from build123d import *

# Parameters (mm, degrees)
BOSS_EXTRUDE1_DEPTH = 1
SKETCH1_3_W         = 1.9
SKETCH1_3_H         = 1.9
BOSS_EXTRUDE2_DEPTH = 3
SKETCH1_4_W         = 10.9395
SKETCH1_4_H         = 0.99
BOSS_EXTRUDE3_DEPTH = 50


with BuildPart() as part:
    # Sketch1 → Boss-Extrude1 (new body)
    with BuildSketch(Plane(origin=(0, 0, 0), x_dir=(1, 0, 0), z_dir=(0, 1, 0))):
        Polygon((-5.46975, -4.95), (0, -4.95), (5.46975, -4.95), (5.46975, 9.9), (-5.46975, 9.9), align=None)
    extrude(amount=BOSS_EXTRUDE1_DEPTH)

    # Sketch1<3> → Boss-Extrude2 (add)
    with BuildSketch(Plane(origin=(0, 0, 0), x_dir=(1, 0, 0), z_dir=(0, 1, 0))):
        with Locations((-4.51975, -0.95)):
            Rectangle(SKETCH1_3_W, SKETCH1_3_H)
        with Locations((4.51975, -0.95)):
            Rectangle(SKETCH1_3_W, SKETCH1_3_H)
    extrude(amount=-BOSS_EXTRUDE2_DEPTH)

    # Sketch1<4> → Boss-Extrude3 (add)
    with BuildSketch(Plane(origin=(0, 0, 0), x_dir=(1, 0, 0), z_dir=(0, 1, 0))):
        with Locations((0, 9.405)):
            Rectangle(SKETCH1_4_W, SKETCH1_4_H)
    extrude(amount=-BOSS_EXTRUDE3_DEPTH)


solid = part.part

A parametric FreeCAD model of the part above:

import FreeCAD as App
import Part
import Sketcher

doc = App.newDocument("Part")
params = doc.addObject("Spreadsheet::Sheet", "Params")
for row, (alias, value) in enumerate([
    ("sketch1_height", "14.85 mm"),
    ("pad1_length", "1 mm"),
    ("sketch2_width", "1.9 mm"),
    ("pad2_length", "3 mm"),
    ("sketch3_height", "0.99 mm"),
    ("pad3_length", "50 mm"),
], start=1):
    params.set(f"A{row}", alias)
    params.set(f"B{row}", "=" + value)
    params.setAlias(f"B{row}", alias)

body = doc.addObject("PartDesign::Body", "Body")

# Sketch on XZ plane
sketch1 = body.newObject("Sketcher::SketchObject", "Sketch")
sketch1.AttachmentSupport = (doc.getObject("XZ_Plane"), [""])
sketch1.MapMode = "FlatFace"
sketch1.addGeometry([
    Part.LineSegment(App.Vector(-5, 5, 0), App.Vector(5, 5, 0)),
    Part.LineSegment(App.Vector(5, 5, 0), App.Vector(5, -10, 0)),
    Part.LineSegment(App.Vector(5, -10, 0), App.Vector(-5, -10, 0)),
    Part.LineSegment(App.Vector(-5, -10, 0), App.Vector(-5, 5, 0)),
], False)
sketch1.addConstraint([
    Sketcher.Constraint("Coincident", 0, 2, 1, 1),
    Sketcher.Constraint("Coincident", 1, 2, 2, 1),
    Sketcher.Constraint("Coincident", 2, 2, 3, 1),
    Sketcher.Constraint("Coincident", 3, 2, 0, 1),
    Sketcher.Constraint("Horizontal", 0),
    Sketcher.Constraint("Vertical", 1),
    Sketcher.Constraint("Horizontal", 2),
    Sketcher.Constraint("Vertical", 3),
    Sketcher.Constraint("DistanceY", 1, 2, 1, 1, 14.85),
    Sketcher.Constraint("DistanceY", 1, 2, -1, 1, 9.9),
    Sketcher.Constraint("DistanceX", 0, 1, 0, 2, 10.9395),
    Sketcher.Constraint("DistanceX", -1, 1, 0, 2, 5.46975),
])
sketch1.setExpression("Constraints[8]", "Params.sketch1_height")
pad1 = body.newObject("PartDesign::Pad", "Pad")
pad1.Profile = sketch1
pad1.setExpression("Length", "Params.pad1_length")
pad1.Reversed = True

# Sketch on XZ plane
sketch2 = body.newObject("Sketcher::SketchObject", "Sketch001")
sketch2.AttachmentSupport = (doc.getObject("XZ_Plane"), [""])
sketch2.MapMode = "FlatFace"
sketch2.addGeometry([
    Part.LineSegment(App.Vector(-5.5, 0, 0), App.Vector(-5.5, 1.9, 0)),  # 0
    Part.LineSegment(App.Vector(-5.5, 1.9, 0), App.Vector(-3.6, 1.9, 0)),  # 1
    Part.LineSegment(App.Vector(-3.6, 1.9, 0), App.Vector(-3.6, 0, 0)),  # 2
    Part.LineSegment(App.Vector(-3.6, 0, 0), App.Vector(-5.5, 0, 0)),  # 3
    Part.LineSegment(App.Vector(3.6, 0, 0), App.Vector(3.6, 1.9, 0)),  # 4
    Part.LineSegment(App.Vector(3.6, 1.9, 0), App.Vector(5.5, 1.9, 0)),  # 5
    Part.LineSegment(App.Vector(5.5, 1.9, 0), App.Vector(5.5, 0, 0)),  # 6
    Part.LineSegment(App.Vector(5.5, 0, 0), App.Vector(3.6, 0, 0)),  # 7
], False)
sketch2.addConstraint([
    Sketcher.Constraint("Coincident", 0, 2, 1, 1),
    Sketcher.Constraint("Coincident", 1, 2, 2, 1),
    Sketcher.Constraint("Coincident", 2, 2, 3, 1),
    Sketcher.Constraint("Coincident", 3, 2, 0, 1),
    Sketcher.Constraint("Coincident", 4, 2, 5, 1),
    Sketcher.Constraint("Coincident", 5, 2, 6, 1),
    Sketcher.Constraint("Coincident", 6, 2, 7, 1),
    Sketcher.Constraint("Coincident", 7, 2, 4, 1),
    Sketcher.Constraint("Vertical", 0),
    Sketcher.Constraint("Horizontal", 1),
    Sketcher.Constraint("Vertical", 2),
    Sketcher.Constraint("Horizontal", 3),
    Sketcher.Constraint("Vertical", 4),
    Sketcher.Constraint("Horizontal", 5),
    Sketcher.Constraint("Vertical", 6),
    Sketcher.Constraint("Horizontal", 7),
    Sketcher.Constraint("Symmetric", 3, 2, 6, 2, -1, 1),
    Sketcher.Constraint("Symmetric", 1, 2, 4, 2, -2),
    Sketcher.Constraint("PointOnObject", 2, 2, -1),
    Sketcher.Constraint("Equal", 7, 0),
    Sketcher.Constraint("DistanceX", 1, 1, 1, 2, 1.9),
    Sketcher.Constraint("DistanceX", 1, 2, 4, 2, 7.1395),
])
sketch2.setExpression("Constraints[20]", "Params.sketch2_width")
pad2 = body.newObject("PartDesign::Pad", "Pad001")
pad2.Profile = sketch2
pad2.setExpression("Length", "Params.pad2_length")

# Sketch on XZ plane
sketch3 = body.newObject("Sketcher::SketchObject", "Sketch002")
sketch3.AttachmentSupport = (doc.getObject("XZ_Plane"), [""])
sketch3.MapMode = "FlatFace"
sketch3.addGeometry([
    Part.LineSegment(App.Vector(-5.5, -9.9, 0), App.Vector(-5.5, -8.9, 0)),
    Part.LineSegment(App.Vector(-5.5, -8.9, 0), App.Vector(5.5, -8.9, 0)),
    Part.LineSegment(App.Vector(5.5, -8.9, 0), App.Vector(5.5, -9.9, 0)),
    Part.LineSegment(App.Vector(5.5, -9.9, 0), App.Vector(-5.5, -9.9, 0)),
], False)
sketch3.addConstraint([
    Sketcher.Constraint("Coincident", 0, 2, 1, 1),
    Sketcher.Constraint("Coincident", 1, 2, 2, 1),
    Sketcher.Constraint("Coincident", 2, 2, 3, 1),
    Sketcher.Constraint("Coincident", 3, 2, 0, 1),
    Sketcher.Constraint("Vertical", 0),
    Sketcher.Constraint("Horizontal", 1),
    Sketcher.Constraint("Vertical", 2),
    Sketcher.Constraint("Horizontal", 3),
    Sketcher.Constraint("DistanceY", 0, 1, 0, 2, 0.99),
    Sketcher.Constraint("DistanceY", 2, 2, -1, 1, 9.9),
    Sketcher.Constraint("DistanceX", 1, 1, 1, 2, 10.9395),
    Sketcher.Constraint("DistanceX", 0, 2, -1, 1, 5.46975),
])
sketch3.setExpression("Constraints[8]", "Params.sketch3_height")
pad3 = body.newObject("PartDesign::Pad", "Pad002")
pad3.Profile = sketch3
pad3.setExpression("Length", "Params.pad3_length")

doc.recompute()
